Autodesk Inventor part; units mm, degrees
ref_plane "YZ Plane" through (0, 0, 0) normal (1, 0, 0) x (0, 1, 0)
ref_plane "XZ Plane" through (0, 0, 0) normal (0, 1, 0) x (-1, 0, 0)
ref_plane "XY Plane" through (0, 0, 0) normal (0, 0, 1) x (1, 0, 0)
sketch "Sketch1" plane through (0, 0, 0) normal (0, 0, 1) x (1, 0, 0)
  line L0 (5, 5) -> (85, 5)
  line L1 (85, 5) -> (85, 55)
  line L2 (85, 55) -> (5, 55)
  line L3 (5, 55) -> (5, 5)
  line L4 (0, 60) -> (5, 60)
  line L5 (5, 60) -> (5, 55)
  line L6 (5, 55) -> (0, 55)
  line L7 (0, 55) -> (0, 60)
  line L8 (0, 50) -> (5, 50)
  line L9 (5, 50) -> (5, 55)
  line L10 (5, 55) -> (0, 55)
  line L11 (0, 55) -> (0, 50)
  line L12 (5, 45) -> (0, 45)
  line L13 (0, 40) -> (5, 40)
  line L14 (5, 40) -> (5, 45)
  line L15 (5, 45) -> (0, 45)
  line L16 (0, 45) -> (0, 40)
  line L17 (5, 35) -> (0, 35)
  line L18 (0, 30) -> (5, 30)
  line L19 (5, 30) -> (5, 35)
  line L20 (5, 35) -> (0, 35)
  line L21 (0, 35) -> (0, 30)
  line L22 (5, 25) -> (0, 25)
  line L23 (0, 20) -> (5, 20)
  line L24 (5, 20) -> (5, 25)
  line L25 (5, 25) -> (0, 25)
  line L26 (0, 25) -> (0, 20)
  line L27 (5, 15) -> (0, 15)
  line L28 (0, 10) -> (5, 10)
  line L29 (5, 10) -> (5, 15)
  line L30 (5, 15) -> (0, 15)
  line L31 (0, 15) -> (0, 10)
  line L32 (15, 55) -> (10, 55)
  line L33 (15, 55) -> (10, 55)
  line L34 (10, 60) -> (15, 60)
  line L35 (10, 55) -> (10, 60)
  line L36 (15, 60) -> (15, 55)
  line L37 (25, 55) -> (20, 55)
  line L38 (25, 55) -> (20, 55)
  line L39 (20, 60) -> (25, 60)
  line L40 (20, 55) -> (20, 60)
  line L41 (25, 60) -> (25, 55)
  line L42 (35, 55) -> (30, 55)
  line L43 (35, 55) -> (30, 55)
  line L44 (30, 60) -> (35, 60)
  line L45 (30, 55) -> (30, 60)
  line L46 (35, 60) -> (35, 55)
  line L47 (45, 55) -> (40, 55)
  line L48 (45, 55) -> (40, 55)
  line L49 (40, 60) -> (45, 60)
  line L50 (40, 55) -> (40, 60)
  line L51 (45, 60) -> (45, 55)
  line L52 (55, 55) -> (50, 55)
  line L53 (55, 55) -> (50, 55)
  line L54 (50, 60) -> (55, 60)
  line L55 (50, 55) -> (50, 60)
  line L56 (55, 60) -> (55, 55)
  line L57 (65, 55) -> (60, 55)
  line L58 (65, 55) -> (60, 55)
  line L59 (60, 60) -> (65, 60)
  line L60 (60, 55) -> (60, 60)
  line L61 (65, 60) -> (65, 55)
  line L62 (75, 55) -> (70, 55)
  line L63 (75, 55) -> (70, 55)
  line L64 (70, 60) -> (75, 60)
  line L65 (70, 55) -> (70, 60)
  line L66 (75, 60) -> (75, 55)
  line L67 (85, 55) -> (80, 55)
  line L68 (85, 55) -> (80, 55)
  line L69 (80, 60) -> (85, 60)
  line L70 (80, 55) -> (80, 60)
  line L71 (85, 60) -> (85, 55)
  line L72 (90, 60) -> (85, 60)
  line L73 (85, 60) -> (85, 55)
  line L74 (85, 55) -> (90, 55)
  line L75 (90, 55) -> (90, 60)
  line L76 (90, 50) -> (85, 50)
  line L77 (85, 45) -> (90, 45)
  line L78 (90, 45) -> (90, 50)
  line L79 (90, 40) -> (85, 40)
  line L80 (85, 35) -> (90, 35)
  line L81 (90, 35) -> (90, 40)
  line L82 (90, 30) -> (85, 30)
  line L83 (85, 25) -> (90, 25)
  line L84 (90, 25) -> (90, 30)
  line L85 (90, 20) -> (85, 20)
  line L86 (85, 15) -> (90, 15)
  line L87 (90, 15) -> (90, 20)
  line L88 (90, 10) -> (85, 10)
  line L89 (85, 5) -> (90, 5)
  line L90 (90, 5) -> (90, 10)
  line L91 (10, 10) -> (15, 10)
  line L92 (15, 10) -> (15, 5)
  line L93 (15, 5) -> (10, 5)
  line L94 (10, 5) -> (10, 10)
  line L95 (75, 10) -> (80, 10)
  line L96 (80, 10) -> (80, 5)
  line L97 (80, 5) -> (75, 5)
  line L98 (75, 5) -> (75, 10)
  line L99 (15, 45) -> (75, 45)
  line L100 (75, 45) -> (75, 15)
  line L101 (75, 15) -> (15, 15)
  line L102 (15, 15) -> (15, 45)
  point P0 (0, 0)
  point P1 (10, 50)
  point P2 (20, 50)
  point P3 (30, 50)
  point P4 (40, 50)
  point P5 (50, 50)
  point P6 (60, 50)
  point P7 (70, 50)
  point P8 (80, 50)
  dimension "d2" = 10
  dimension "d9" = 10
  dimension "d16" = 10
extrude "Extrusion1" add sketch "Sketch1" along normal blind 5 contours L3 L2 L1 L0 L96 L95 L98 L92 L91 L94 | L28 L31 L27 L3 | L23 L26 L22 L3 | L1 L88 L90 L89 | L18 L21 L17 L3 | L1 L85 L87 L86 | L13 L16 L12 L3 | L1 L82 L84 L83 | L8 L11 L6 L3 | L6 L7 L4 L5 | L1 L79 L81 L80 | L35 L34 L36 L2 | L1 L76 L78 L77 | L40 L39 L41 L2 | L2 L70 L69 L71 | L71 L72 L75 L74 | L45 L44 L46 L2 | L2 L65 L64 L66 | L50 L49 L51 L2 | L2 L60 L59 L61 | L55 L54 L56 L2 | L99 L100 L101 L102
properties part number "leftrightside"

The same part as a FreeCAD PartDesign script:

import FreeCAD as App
import Part
import Sketcher

V = App.Vector

doc = App.newDocument("Part")
body = doc.addObject("PartDesign::Body", "Body")

# Sketch on XY plane
sketch1 = body.newObject("Sketcher::SketchObject", "Sketch")
sketch1.AttachmentSupport = (doc.getObject("XY_Plane"), [""])
sketch1.MapMode = "FlatFace"
sketch1.addGeometry([
    Part.LineSegment(V(5, 10, 0), V(5, 5, 0)),  # 0
    Part.LineSegment(V(5, 5, 0), V(10, 5, 0)),  # 1
    Part.LineSegment(V(10, 5, 0), V(10, 10, 0)),  # 2
    Part.LineSegment(V(10, 10, 0), V(15, 10, 0)),  # 3
    Part.LineSegment(V(15, 10, 0), V(15, 5, 0)),  # 4
    Part.LineSegment(V(15, 5, 0), V(75, 5, 0)),  # 5
    Part.LineSegment(V(75, 5, 0), V(75, 10, 0)),  # 6
    Part.LineSegment(V(75, 10, 0), V(80, 10, 0)),  # 7
    Part.LineSegment(V(80, 10, 0), V(80, 5, 0)),  # 8
    Part.LineSegment(V(80, 5, 0), V(90, 5, 0)),  # 9
    Part.LineSegment(V(90, 5, 0), V(90, 10, 0)),  # 10
    Part.LineSegment(V(90, 10, 0), V(85, 10, 0)),  # 11
    Part.LineSegment(V(85, 10, 0), V(85, 15, 0)),  # 12
    Part.LineSegment(V(85, 15, 0), V(90, 15, 0)),  # 13
    Part.LineSegment(V(90, 15, 0), V(90, 20, 0)),  # 14
    Part.LineSegment(V(90, 20, 0), V(85, 20, 0)),  # 15
    Part.LineSegment(V(85, 20, 0), V(85, 25, 0)),  # 16
    Part.LineSegment(V(85, 25, 0), V(90, 25, 0)),  # 17
    Part.LineSegment(V(90, 25, 0), V(90, 30, 0)),  # 18
    Part.LineSegment(V(90, 30, 0), V(85, 30, 0)),  # 19
    Part.LineSegment(V(85, 30, 0), V(85, 35, 0)),  # 20
    Part.LineSegment(V(85, 35, 0), V(90, 35, 0)),  # 21
    Part.LineSegment(V(90, 35, 0), V(90, 40, 0)),  # 22
    Part.LineSegment(V(90, 40, 0), V(85, 40, 0)),  # 23
    Part.LineSegment(V(85, 40, 0), V(85, 45, 0)),  # 24
    Part.LineSegment(V(85, 45, 0), V(90, 45, 0)),  # 25
    Part.LineSegment(V(90, 45, 0), V(90, 50, 0)),  # 26
    Part.LineSegment(V(90, 50, 0), V(85, 50, 0)),  # 27
    Part.LineSegment(V(85, 50, 0), V(85, 55, 0)),  # 28
    Part.LineSegment(V(85, 55, 0), V(90, 55, 0)),  # 29
    Part.LineSegment(V(90, 55, 0), V(90, 60, 0)),  # 30
    Part.LineSegment(V(90, 60, 0), V(80, 60, 0)),  # 31
    Part.LineSegment(V(80, 60, 0), V(80, 55, 0)),  # 32
    Part.LineSegment(V(80, 55, 0), V(75, 55, 0)),  # 33
    Part.LineSegment(V(75, 55, 0), V(75, 60, 0)),  # 34
    Part.LineSegment(V(75, 60, 0), V(70, 60, 0)),  # 35
    Part.LineSegment(V(70, 60, 0), V(70, 55, 0)),  # 36
    Part.LineSegment(V(70, 55, 0), V(65, 55, 0)),  # 37
    Part.LineSegment(V(65, 55, 0), V(65, 60, 0)),  # 38
    Part.LineSegment(V(65, 60, 0), V(60, 60, 0)),  # 39
    Part.LineSegment(V(60, 60, 0), V(60, 55, 0)),  # 40
    Part.LineSegment(V(60, 55, 0), V(55, 55, 0)),  # 41
    Part.LineSegment(V(55, 55, 0), V(55, 60, 0)),  # 42
    Part.LineSegment(V(55, 60, 0), V(50, 60, 0)),  # 43
    Part.LineSegment(V(50, 60, 0), V(50, 55, 0)),  # 44
    Part.LineSegment(V(50, 55, 0), V(45, 55, 0)),  # 45
    Part.LineSegment(V(45, 55, 0), V(45, 60, 0)),  # 46
    Part.LineSegment(V(45, 60, 0), V(40, 60, 0)),  # 47
    Part.LineSegment(V(40, 60, 0), V(40, 55, 0)),  # 48
    Part.LineSegment(V(40, 55, 0), V(35, 55, 0)),  # 49
    Part.LineSegment(V(35, 55, 0), V(35, 60, 0)),  # 50
    Part.LineSegment(V(35, 60, 0), V(30, 60, 0)),  # 51
    Part.LineSegment(V(30, 60, 0), V(30, 55, 0)),  # 52
    Part.LineSegment(V(30, 55, 0), V(25, 55, 0)),  # 53
    Part.LineSegment(V(25, 55, 0), V(25, 60, 0)),  # 54
    Part.LineSegment(V(25, 60, 0), V(20, 60, 0)),  # 55
    Part.LineSegment(V(20, 60, 0), V(20, 55, 0)),  # 56
    Part.LineSegment(V(20, 55, 0), V(15, 55, 0)),  # 57
    Part.LineSegment(V(15, 55, 0), V(15, 60, 0)),  # 58
    Part.LineSegment(V(15, 60, 0), V(10, 60, 0)),  # 59
    Part.LineSegment(V(10, 60, 0), V(10, 55, 0)),  # 60
    Part.LineSegment(V(10, 55, 0), V(5, 55, 0)),  # 61
    Part.LineSegment(V(5, 55, 0), V(5, 60, 0)),  # 62
    Part.LineSegment(V(5, 60, 0), V(0, 60, 0)),  # 63
    Part.LineSegment(V(0, 60, 0), V(0, 50, 0)),  # 64
    Part.LineSegment(V(0, 50, 0), V(5, 50, 0)),  # 65
    Part.LineSegment(V(5, 50, 0), V(5, 45, 0)),  # 66
    Part.LineSegment(V(5, 45, 0), V(0, 45, 0)),  # 67
    Part.LineSegment(V(0, 45, 0), V(0, 40, 0)),  # 68
    Part.LineSegment(V(0, 40, 0), V(5, 40, 0)),  # 69
    Part.LineSegment(V(5, 40, 0), V(5, 35, 0)),  # 70
    Part.LineSegment(V(5, 35, 0), V(0, 35, 0)),  # 71
    Part.LineSegment(V(0, 35, 0), V(0, 30, 0)),  # 72
    Part.LineSegment(V(0, 30, 0), V(5, 30, 0)),  # 73
    Part.LineSegment(V(5, 30, 0), V(5, 25, 0)),  # 74
    Part.LineSegment(V(5, 25, 0), V(0, 25, 0)),  # 75
    Part.LineSegment(V(0, 25, 0), V(0, 20, 0)),  # 76
    Part.LineSegment(V(0, 20, 0), V(5, 20, 0)),  # 77
    Part.LineSegment(V(5, 20, 0), V(5, 15, 0)),  # 78
    Part.LineSegment(V(5, 15, 0), V(0, 15, 0)),  # 79
    Part.LineSegment(V(0, 15, 0), V(0, 10, 0)),  # 80
    Part.LineSegment(V(0, 10, 0), V(5, 10, 0)),  # 81
], False)
sketch1.addConstraint([
    Sketcher.Constraint("Coincident", 0, 2, 1, 1),
    Sketcher.Constraint("Coincident", 1, 2, 2, 1),
    Sketcher.Constraint("Coincident", 2, 2, 3, 1),
    Sketcher.Constraint("Coincident", 3, 2, 4, 1),
    Sketcher.Constraint("Coincident", 4, 2, 5, 1),
    Sketcher.Constraint("Coincident", 5, 2, 6, 1),
    Sketcher.Constraint("Coincident", 6, 2, 7, 1),
    Sketcher.Constraint("Coincident", 7, 2, 8, 1),
    Sketcher.Constraint("Coincident", 8, 2, 9, 1),
    Sketcher.Constraint("Coincident", 9, 2, 10, 1),
    Sketcher.Constraint("Coincident", 10, 2, 11, 1),
    Sketcher.Constraint("Coincident", 11, 2, 12, 1),
    Sketcher.Constraint("Coincident", 12, 2, 13, 1),
    Sketcher.Constraint("Coincident", 13, 2, 14, 1),
    Sketcher.Constraint("Coincident", 14, 2, 15, 1),
    Sketcher.Constraint("Coincident", 15, 2, 16, 1),
    Sketcher.Constraint("Coincident", 16, 2, 17, 1),
    Sketcher.Constraint("Coincident", 17, 2, 18, 1),
    Sketcher.Constraint("Coincident", 18, 2, 19, 1),
    Sketcher.Constraint("Coincident", 19, 2, 20, 1),
    Sketcher.Constraint("Coincident", 20, 2, 21, 1),
    Sketcher.Constraint("Coincident", 21, 2, 22, 1),
    Sketcher.Constraint("Coincident", 22, 2, 23, 1),
    Sketcher.Constraint("Coincident", 23, 2, 24, 1),
    Sketcher.Constraint("Coincident", 24, 2, 25, 1),
    Sketcher.Constraint("Coincident", 25, 2, 26, 1),
    Sketcher.Constraint("Coincident", 26, 2, 27, 1),
    Sketcher.Constraint("Coincident", 27, 2, 28, 1),
    Sketcher.Constraint("Coincident", 28, 2, 29, 1),
    Sketcher.Constraint("Coincident", 29, 2, 30, 1),
    Sketcher.Constraint("Coincident", 30, 2, 31, 1),
    Sketcher.Constraint("Coincident", 31, 2, 32, 1),
    Sketcher.Constraint("Coincident", 32, 2, 33, 1),
    Sketcher.Constraint("Coincident", 33, 2, 34, 1),
    Sketcher.Constraint("Coincident", 34, 2, 35, 1),
    Sketcher.Constraint("Coincident", 35, 2, 36, 1),
    Sketcher.Constraint("Coincident", 36, 2, 37, 1),
    Sketcher.Constraint("Coincident", 37, 2, 38, 1),
    Sketcher.Constraint("Coincident", 38, 2, 39, 1),
    Sketcher.Constraint("Coincident", 39, 2, 40, 1),
    Sketcher.Constraint("Coincident", 40, 2, 41, 1),
    Sketcher.Constraint("Coincident", 41, 2, 42, 1),
    Sketcher.Constraint("Coincident", 42, 2, 43, 1),
    Sketcher.Constraint("Coincident", 43, 2, 44, 1),
    Sketcher.Constraint("Coincident", 44, 2, 45, 1),
    Sketcher.Constraint("Coincident", 45, 2, 46, 1),
    Sketcher.Constraint("Coincident", 46, 2, 47, 1),
    Sketcher.Constraint("Coincident", 47, 2, 48, 1),
    Sketcher.Constraint("Coincident", 48, 2, 49, 1),
    Sketcher.Constraint("Coincident", 49, 2, 50, 1),
    Sketcher.Constraint("Coincident", 50, 2, 51, 1),
    Sketcher.Constraint("Coincident", 51, 2, 52, 1),
    Sketcher.Constraint("Coincident", 52, 2, 53, 1),
    Sketcher.Constraint("Coincident", 53, 2, 54, 1),
    Sketcher.Constraint("Coincident", 54, 2, 55, 1),
    Sketcher.Constraint("Coincident", 55, 2, 56, 1),
    Sketcher.Constraint("Coincident", 56, 2, 57, 1),
    Sketcher.Constraint("Coincident", 57, 2, 58, 1),
    Sketcher.Constraint("Coincident", 58, 2, 59, 1),
    Sketcher.Constraint("Coincident", 59, 2, 60, 1),
    Sketcher.Constraint("Coincident", 60, 2, 61, 1),
    Sketcher.Constraint("Coincident", 61, 2, 62, 1),
    Sketcher.Constraint("Coincident", 62, 2, 63, 1),
    Sketcher.Constraint("Coincident", 63, 2, 64, 1),
    Sketcher.Constraint("Coincident", 64, 2, 65, 1),
    Sketcher.Constraint("Coincident", 65, 2, 66, 1),
    Sketcher.Constraint("Coincident", 66, 2, 67, 1),
    Sketcher.Constraint("Coincident", 67, 2, 68, 1),
    Sketcher.Constraint("Coincident", 68, 2, 69, 1),
    Sketcher.Constraint("Coincident", 69, 2, 70, 1),
    Sketcher.Constraint("Coincident", 70, 2, 71, 1),
    Sketcher.Constraint("Coincident", 71, 2, 72, 1),
    Sketcher.Constraint("Coincident", 72, 2, 73, 1),
    Sketcher.Constraint("Coincident", 73, 2, 74, 1),
    Sketcher.Constraint("Coincident", 74, 2, 75, 1),
    Sketcher.Constraint("Coincident", 75, 2, 76, 1),
    Sketcher.Constraint("Coincident", 76, 2, 77, 1),
    Sketcher.Constraint("Coincident", 77, 2, 78, 1),
    Sketcher.Constraint("Coincident", 78, 2, 79, 1),
    Sketcher.Constraint("Coincident", 79, 2, 80, 1),
    Sketcher.Constraint("Coincident", 80, 2, 81, 1),
    Sketcher.Constraint("Coincident", 81, 2, 0, 1),
    Sketcher.Constraint("Vertical", 0),
    Sketcher.Constraint("Horizontal", 1),
    Sketcher.Constraint("Vertical", 2),
    Sketcher.Constraint("Horizontal", 3),
    Sketcher.Constraint("Vertical", 4),
    Sketcher.Constraint("Horizontal", 5),
    Sketcher.Constraint("Vertical", 6),
    Sketcher.Constraint("Horizontal", 7),
    Sketcher.Constraint("Vertical", 8),
    Sketcher.Constraint("Horizontal", 9),
    Sketcher.Constraint("Vertical", 10),
    Sketcher.Constraint("Horizontal", 11),
    Sketcher.Constraint("Vertical", 12),
    Sketcher.Constraint("Horizontal", 13),
    Sketcher.Constraint("Vertical", 14),
    Sketcher.Constraint("Horizontal", 15),
    Sketcher.Constraint("Vertical", 16),
    Sketcher.Constraint("Horizontal", 17),
    Sketcher.Constraint("Vertical", 18),
    Sketcher.Constraint("Horizontal", 19),
    Sketcher.Constraint("Vertical", 20),
    Sketcher.Constraint("Horizontal", 21),
    Sketcher.Constraint("Vertical", 22),
    Sketcher.Constraint("Horizontal", 23),
    Sketcher.Constraint("Vertical", 24),
    Sketcher.Constraint("Horizontal", 25),
    Sketcher.Constraint("Vertical", 26),
    Sketcher.Constraint("Horizontal", 27),
    Sketcher.Constraint("Vertical", 28),
    Sketcher.Constraint("Horizontal", 29),
    Sketcher.Constraint("Vertical", 30),
    Sketcher.Constraint("Horizontal", 31),
    Sketcher.Constraint("Vertical", 32),
    Sketcher.Constraint("Horizontal", 33),
    Sketcher.Constraint("Vertical", 34),
    Sketcher.Constraint("Horizontal", 35),
    Sketcher.Constraint("Vertical", 36),
    Sketcher.Constraint("Horizontal", 37),
    Sketcher.Constraint("Vertical", 38),
    Sketcher.Constraint("Horizontal", 39),
    Sketcher.Constraint("Vertical", 40),
    Sketcher.Constraint("Horizontal", 41),
    Sketcher.Constraint("Vertical", 42),
    Sketcher.Constraint("Horizontal", 43),
    Sketcher.Constraint("Vertical", 44),
    Sketcher.Constraint("Horizontal", 45),
    Sketcher.Constraint("Vertical", 46),
    Sketcher.Constraint("Horizontal", 47),
    Sketcher.Constraint("Vertical", 48),
    Sketcher.Constraint("Horizontal", 49),
    Sketcher.Constraint("Vertical", 50),
    Sketcher.Constraint("Horizontal", 51),
    Sketcher.Constraint("Vertical", 52),
    Sketcher.Constraint("Horizontal", 53),
    Sketcher.Constraint("Vertical", 54),
    Sketcher.Constraint("Horizontal", 55),
    Sketcher.Constraint("Vertical", 56),
    Sketcher.Constraint("Horizontal", 57),
    Sketcher.Constraint("Vertical", 58),
    Sketcher.Constraint("Horizontal", 59),
    Sketcher.Constraint("Vertical", 60),
    Sketcher.Constraint("Horizontal", 61),
    Sketcher.Constraint("Vertical", 62),
    Sketcher.Constraint("Horizontal", 63),
    Sketcher.Constraint("Vertical", 64),
    Sketcher.Constraint("Horizontal", 65),
    Sketcher.Constraint("Vertical", 66),
    Sketcher.Constraint("Horizontal", 67),
    Sketcher.Constraint("Vertical", 68),
    Sketcher.Constraint("Horizontal", 69),
    Sketcher.Constraint("Vertical", 70),
    Sketcher.Constraint("Horizontal", 71),
    Sketcher.Constraint("Vertical", 72),
    Sketcher.Constraint("Horizontal", 73),
    Sketcher.Constraint("Vertical", 74),
    Sketcher.Constraint("Horizontal", 75),
    Sketcher.Constraint("Vertical", 76),
    Sketcher.Constraint("Horizontal", 77),
    Sketcher.Constraint("Vertical", 78),
    Sketcher.Constraint("Horizontal", 79),
    Sketcher.Constraint("Vertical", 80),
    Sketcher.Constraint("Horizontal", 81),
    Sketcher.Constraint("PointOnObject", 63, 2, -2),
    Sketcher.Constraint("PointOnObject", 67, 2, -2),
    Sketcher.Constraint("PointOnObject", 71, 2, -2),
    Sketcher.Constraint("PointOnObject", 75, 2, -2),
    Sketcher.Constraint("PointOnObject", 79, 2, -2),
    Sketcher.Constraint("Horizontal", 1, 2, 4, 2),
    Sketcher.Constraint("Horizontal", 3, 2, 6, 2),
    Sketcher.Constraint("Horizontal", 5, 2, 8, 2),
    Sketcher.Constraint("Horizontal", 7, 2, 10, 2),
    Sketcher.Constraint("Horizontal", 29, 2, 32, 2),
    Sketcher.Constraint("Horizontal", 31, 2, 34, 2),
    Sketcher.Constraint("Horizontal", 33, 2, 36, 2),
    Sketcher.Constraint("Horizontal", 35, 2, 38, 2),
    Sketcher.Constraint("Horizontal", 37, 2, 40, 2),
    Sketcher.Constraint("Horizontal", 39, 2, 42, 2),
    Sketcher.Constraint("Horizontal", 41, 2, 44, 2),
    Sketcher.Constraint("Horizontal", 43, 2, 46, 2),
    Sketcher.Constraint("Horizontal", 45, 2, 48, 2),
    Sketcher.Constraint("Horizontal", 47, 2, 50, 2),
    Sketcher.Constraint("Horizontal", 49, 2, 52, 2),
    Sketcher.Constraint("Horizontal", 51, 2, 54, 2),
    Sketcher.Constraint("Horizontal", 53, 2, 56, 2),
    Sketcher.Constraint("Horizontal", 55, 2, 58, 2),
    Sketcher.Constraint("Horizontal", 57, 2, 60, 2),
    Sketcher.Constraint("Horizontal", 59, 2, 62, 2),
    Sketcher.Constraint("Horizontal", 27, 2, 64, 2),
    Sketcher.Constraint("Horizontal", 25, 2, 66, 2),
    Sketcher.Constraint("Horizontal", 23, 2, 68, 2),
    Sketcher.Constraint("Horizontal", 21, 2, 70, 2),
    Sketcher.Constraint("Horizontal", 19, 2, 72, 2),
    Sketcher.Constraint("Horizontal", 17, 2, 74, 2),
    Sketcher.Constraint("Horizontal", 15, 2, 76, 2),
    Sketcher.Constraint("Horizontal", 13, 2, 78, 2),
    Sketcher.Constraint("Horizontal", 11, 2, 80, 2),
    Sketcher.Constraint("Vertical", 10, 2, 13, 2),
    Sketcher.Constraint("Vertical", 12, 2, 15, 2),
    Sketcher.Constraint("Vertical", 14, 2, 17, 2),
    Sketcher.Constraint("Vertical", 16, 2, 19, 2),
    Sketcher.Constraint("Vertical", 18, 2, 21, 2),
    Sketcher.Constraint("Vertical", 20, 2, 23, 2),
    Sketcher.Constraint("Vertical", 22, 2, 25, 2),
    Sketcher.Constraint("Vertical", 24, 2, 27, 2),
    Sketcher.Constraint("Vertical", 26, 2, 29, 2),
    Sketcher.Constraint("Vertical", 8, 2, 31, 2),
    Sketcher.Constraint("Vertical", 6, 2, 33, 2),
    Sketcher.Constraint("Vertical", 4, 2, 57, 2),
    Sketcher.Constraint("Vertical", 2, 2, 59, 2),
    Sketcher.Constraint("Vertical", 0, 2, 61, 2),
    Sketcher.Constraint("Vertical", 62, 2, 65, 2),
    Sketcher.Constraint("Vertical", 66, 2, 69, 2),
    Sketcher.Constraint("Vertical", 70, 2, 73, 2),
    Sketcher.Constraint("Vertical", 74, 2, 77, 2),
    Sketcher.Constraint("Equal", 1, 3),
    Sketcher.Constraint("Equal", 3, 7),
    Sketcher.Constraint("Equal", 7, 11),
    Sketcher.Constraint("Equal", 33, 35),
    Sketcher.Constraint("Equal", 35, 37),
    Sketcher.Constraint("Equal", 37, 39),
    Sketcher.Constraint("Equal", 39, 41),
    Sketcher.Constraint("Equal", 41, 43),
    Sketcher.Constraint("Equal", 43, 45),
    Sketcher.Constraint("Equal", 45, 47),
    Sketcher.Constraint("Equal", 47, 49),
    Sketcher.Constraint("Equal", 49, 51),
    Sketcher.Constraint("Equal", 51, 53),
    Sketcher.Constraint("Equal", 53, 55),
    Sketcher.Constraint("Equal", 55, 57),
    Sketcher.Constraint("Equal", 61, 63),
    Sketcher.Constraint("Equal", 81, 0),
    Sketcher.Constraint("Equal", 10, 12),
    Sketcher.Constraint("Equal", 12, 14),
    Sketcher.Constraint("Equal", 14, 16),
    Sketcher.Constraint("Equal", 16, 18),
    Sketcher.Constraint("Equal", 18, 20),
    Sketcher.Constraint("Equal", 20, 22),
    Sketcher.Constraint("Equal", 22, 24),
    Sketcher.Constraint("Equal", 24, 26),
    Sketcher.Constraint("Equal", 26, 28),
    Sketcher.Constraint("Equal", 28, 30),
    Sketcher.Constraint("Equal", 31, 64),
    Sketcher.Constraint("DistanceX", 9, 1, 9, 2, 10.0),
    Sketcher.Constraint("DistanceY", -1, 1, 2, 2, 10.0),
])
pad1 = body.newObject("PartDesign::Pad", "Pad")
pad1.Profile = sketch1
pad1.Length = 5

doc.recompute()
